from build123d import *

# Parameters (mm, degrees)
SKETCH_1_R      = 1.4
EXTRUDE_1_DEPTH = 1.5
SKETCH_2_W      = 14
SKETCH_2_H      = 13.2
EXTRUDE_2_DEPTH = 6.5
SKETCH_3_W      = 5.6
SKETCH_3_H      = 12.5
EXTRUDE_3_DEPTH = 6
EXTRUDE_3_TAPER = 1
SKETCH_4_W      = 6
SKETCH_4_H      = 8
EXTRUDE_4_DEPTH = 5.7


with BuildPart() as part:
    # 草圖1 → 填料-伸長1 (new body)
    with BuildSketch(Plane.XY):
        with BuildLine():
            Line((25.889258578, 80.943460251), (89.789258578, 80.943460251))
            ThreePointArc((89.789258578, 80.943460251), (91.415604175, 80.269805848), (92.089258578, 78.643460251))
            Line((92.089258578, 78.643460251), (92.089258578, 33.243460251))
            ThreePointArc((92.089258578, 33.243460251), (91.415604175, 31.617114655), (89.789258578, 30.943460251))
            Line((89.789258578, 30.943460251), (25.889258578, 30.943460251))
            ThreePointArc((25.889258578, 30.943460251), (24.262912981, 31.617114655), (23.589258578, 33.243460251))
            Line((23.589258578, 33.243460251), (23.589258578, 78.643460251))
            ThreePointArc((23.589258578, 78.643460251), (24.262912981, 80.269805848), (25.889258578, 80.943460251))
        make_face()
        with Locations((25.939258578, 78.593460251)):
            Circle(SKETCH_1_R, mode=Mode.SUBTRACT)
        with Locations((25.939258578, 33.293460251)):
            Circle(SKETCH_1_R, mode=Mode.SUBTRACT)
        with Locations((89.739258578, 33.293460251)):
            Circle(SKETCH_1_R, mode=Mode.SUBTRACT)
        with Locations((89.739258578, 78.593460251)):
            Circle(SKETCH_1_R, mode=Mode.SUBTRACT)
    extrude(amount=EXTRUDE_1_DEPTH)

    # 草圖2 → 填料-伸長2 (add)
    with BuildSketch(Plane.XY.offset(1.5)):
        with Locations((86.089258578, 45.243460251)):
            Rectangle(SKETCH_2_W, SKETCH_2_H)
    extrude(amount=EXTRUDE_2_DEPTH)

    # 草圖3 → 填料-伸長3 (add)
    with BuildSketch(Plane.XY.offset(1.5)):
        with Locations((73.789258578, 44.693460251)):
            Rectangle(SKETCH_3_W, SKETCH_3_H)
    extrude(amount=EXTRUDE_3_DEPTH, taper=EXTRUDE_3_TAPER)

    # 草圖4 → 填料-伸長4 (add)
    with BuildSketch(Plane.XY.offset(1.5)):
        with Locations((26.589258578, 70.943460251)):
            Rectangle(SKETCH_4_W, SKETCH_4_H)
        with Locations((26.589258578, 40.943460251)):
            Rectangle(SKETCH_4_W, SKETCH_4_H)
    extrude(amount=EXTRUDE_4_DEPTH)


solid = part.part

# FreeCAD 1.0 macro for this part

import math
import FreeCAD as App
import Part
import Sketcher

V = App.Vector
Q = App.Units.Quantity


def add_polygon(sketch, points):
    """Adds a closed chain of lines whose ends are joined by coincident constraints."""
    first, n = sketch.GeometryCount, len(points)
    for a, b in zip(points, points[1:] + points[:1]):
        sketch.addGeometry(Part.LineSegment(App.Vector(*a, 0), App.Vector(*b, 0)), False)
    for i in range(n):
        sketch.addConstraint(Sketcher.Constraint("Coincident", first + i, 2, first + (i + 1) % n, 1))

doc = App.newDocument("Part")
params = doc.addObject("Spreadsheet::Sheet", "Params")
for row, (alias, value) in enumerate([
    ("sketch1_diameter", "2.8 mm"),
    ("sketch1_radius", "2.3 mm"),
    ("sketch1_width", "63.9 mm"),
    ("sketch1_height", "45.4 mm"),
    ("pad1_length", "1.5 mm"),
    ("sketch2_width", "14 mm"),
    ("sketch2_height", "13.2 mm"),
    ("pad2_length", "6.5 mm"),
    ("sketch3_width", "5.6 mm"),
    ("sketch3_height", "12.5 mm"),
    ("pad3_length", "6 mm"),
    ("pad3_taper", "-1 deg"),
    ("sketch4_width", "6 mm"),
    ("sketch4_height", "8 mm"),
    ("pad4_length", "5.7 mm"),
], start=1):
    params.set(f"A{row}", alias)
    params.set(f"B{row}", "=" + value)
    params.setAlias(f"B{row}", alias)

body = doc.addObject("PartDesign::Body", "Body")

sketch1 = body.newObject("Sketcher::SketchObject", "Sketch")
sketch1.AttachmentSupport = (doc.getObject("XY_Plane"), [""])
sketch1.MapMode = "FlatFace"
sketch1.addGeometry([
    Part.LineSegment(V(89.8, 80.9, 0), V(25.9, 80.9, 0)),
    Part.ArcOfCircle(Part.Circle(V(25.9, 78.6, 0), V(0, 0, 1), 2.3), math.radians(90), math.radians(180)),
    Part.LineSegment(V(23.6, 78.6, 0), V(23.6, 33.2, 0)),
    Part.ArcOfCircle(Part.Circle(V(25.9, 33.2, 0), V(0, 0, 1), 2.3), math.radians(-180), math.radians(-90)),
    Part.LineSegment(V(25.9, 30.9, 0), V(89.8, 30.9, 0)),
    Part.ArcOfCircle(Part.Circle(V(89.8, 33.2, 0), V(0, 0, 1), 2.3), math.radians(-90), math.radians(0)),
    Part.LineSegment(V(92.1, 33.2, 0), V(92.1, 78.6, 0)),
    Part.ArcOfCircle(Part.Circle(V(89.8, 78.6, 0), V(0, 0, 1), 2.3), math.radians(0), math.radians(90)),
    Part.Circle(V(89.7, 33.3, 0), V(0, 0, 1), 1.4),
    Part.Circle(V(25.9, 33.3, 0), V(0, 0, 1), 1.4),
    Part.Circle(V(89.7, 78.6, 0), V(0, 0, 1), 1.4),
    Part.Circle(V(25.9, 78.6, 0), V(0, 0, 1), 1.4),
], False)
sketch1.addConstraint([
    Sketcher.Constraint("Tangent", 0, 2, 1, 1),
    Sketcher.Constraint("Tangent", 1, 2, 2, 1),
    Sketcher.Constraint("Tangent", 2, 2, 3, 1),
    Sketcher.Constraint("Tangent", 3, 2, 4, 1),
    Sketcher.Constraint("Tangent", 4, 2, 5, 1),
    Sketcher.Constraint("Tangent", 5, 2, 6, 1),
    Sketcher.Constraint("Tangent", 6, 2, 7, 1),
    Sketcher.Constraint("Tangent", 7, 2, 0, 1),
    Sketcher.Constraint("Horizontal", 0),
    Sketcher.Constraint("Vertical", 2),
    Sketcher.Constraint("Horizontal", 4),
    Sketcher.Constraint("Vertical", 6),
    Sketcher.Constraint("Equal", 1, 3),
    Sketcher.Constraint("Equal", 3, 5),
    Sketcher.Constraint("Equal", 5, 7),
    Sketcher.Constraint("Equal", 8, 9),
    Sketcher.Constraint("Equal", 9, 10),
    Sketcher.Constraint("Equal", 10, 11),
    Sketcher.Constraint("Horizontal", 8, 3, 9, 3),
    Sketcher.Constraint("Horizontal", 10, 3, 11, 3),
    Sketcher.Constraint("Vertical", 8, 3, 10, 3),
    Sketcher.Constraint("Vertical", 9, 3, 11, 3),
    Sketcher.Constraint("Diameter", 8, Q("2.8 mm")),
    Sketcher.Constraint("Radius", 1, Q("2.3 mm")),
    Sketcher.Constraint("DistanceX", 0, 2, 0, 1, Q("63.9 mm")),
    Sketcher.Constraint("DistanceY", 2, 2, 2, 1, Q("45.4 mm")),
    Sketcher.Constraint("DistanceX", 9, 3, 8, 3, Q("63.8 mm")),
    Sketcher.Constraint("DistanceY", 8, 3, 10, 3, Q("45.3 mm")),
    Sketcher.Constraint("DistanceX", 8, 3, 5, 3, Q("0.05 mm")),
    Sketcher.Constraint("DistanceY", 5, 3, 8, 3, Q("0.05 mm")),
    Sketcher.Constraint("DistanceX", -1, 1, 1, 3, Q("25.889259 mm")),
    Sketcher.Constraint("DistanceY", -1, 1, 1, 3, Q("78.64346 mm")),
])
sketch1.setExpression("Constraints[22]", "Params.sketch1_diameter")
sketch1.setExpression("Constraints[23]", "Params.sketch1_radius")
sketch1.setExpression("Constraints[24]", "Params.sketch1_width")
sketch1.setExpression("Constraints[25]", "Params.sketch1_height")
pad1 = body.newObject("PartDesign::Pad", "Pad")
pad1.Profile = sketch1
pad1.setExpression("Length", "Params.pad1_length")

sketch2 = body.newObject("Sketcher::SketchObject", "Sketch001")
sketch2.AttachmentSupport = (doc.getObject("XY_Plane"), [""])
sketch2.MapMode = "FlatFace"
sketch2.AttachmentOffset = App.Placement(V(0, 0, 1.5), App.Rotation())
add_polygon(sketch2, [(79, 52), (79, 39), (93, 39), (93, 52)])
sketch2.addConstraint([
    Sketcher.Constraint("Vertical", 0),
    Sketcher.Constraint("Horizontal", 1),
    Sketcher.Constraint("Vertical", 2),
    Sketcher.Constraint("Horizontal", 3),
    Sketcher.Constraint("DistanceX", 1, 1, 1, 2, Q("14 mm")),
    Sketcher.Constraint("DistanceY", 0, 2, 0, 1, Q("13.2 mm")),
    Sketcher.Constraint("DistanceX", -1, 1, 0, 2, Q("79.089259 mm")),
    Sketcher.Constraint("DistanceY", -1, 1, 0, 2, Q("38.64346 mm")),
])
sketch2.setExpression("Constraints[8]", "Params.sketch2_width")
sketch2.setExpression("Constraints[9]", "Params.sketch2_height")
pad2 = body.newObject("PartDesign::Pad", "Pad001")
pad2.Profile = sketch2
pad2.setExpression("Length", "Params.pad2_length")

sketch3 = body.newObject("Sketcher::SketchObject", "Sketch002")
sketch3.AttachmentSupport = (doc.getObject("XY_Plane"), [""])
sketch3.MapMode = "FlatFace"
sketch3.AttachmentOffset = App.Placement(V(0, 0, 1.5), App.Rotation())
add_polygon(sketch3, [(71, 51), (71, 38), (77, 38), (77, 51)])
sketch3.addConstraint([
    Sketcher.Constraint("Vertical", 0),
    Sketcher.Constraint("Horizontal", 1),
    Sketcher.Constraint("Vertical", 2),
    Sketcher.Constraint("Horizontal", 3),
    Sketcher.Constraint("DistanceX", 1, 1, 1, 2, Q("5.6 mm")),
    Sketcher.Constraint("DistanceY", 0, 2, 0, 1, Q("12.5 mm")),
    Sketcher.Constraint("DistanceX", -1, 1, 0, 2, Q("70.989259 mm")),
    Sketcher.Constraint("DistanceY", -1, 1, 0, 2, Q("38.44346 mm")),
])
sketch3.setExpression("Constraints[8]", "Params.sketch3_width")
sketch3.setExpression("Constraints[9]", "Params.sketch3_height")
pad3 = body.newObject("PartDesign::Pad", "Pad002")
pad3.Profile = sketch3
pad3.setExpression("Length", "Params.pad3_length")
pad3.setExpression("TaperAngle", "Params.pad3_taper")

sketch4 = body.newObject("Sketcher::SketchObject", "Sketch003")
sketch4.AttachmentSupport = (doc.getObject("XY_Plane"), [""])
sketch4.MapMode = "FlatFace"
sketch4.AttachmentOffset = App.Placement(V(0, 0, 1.5), App.Rotation())
add_polygon(sketch4, [(24, 75), (24, 67), (30, 67), (30, 75)])
add_polygon(sketch4, [(24, 45), (24, 37), (30, 37), (30, 45)])
sketch4.addConstraint([
    Sketcher.Constraint("Vertical", 0),
    Sketcher.Constraint("Horizontal", 1),
    Sketcher.Constraint("Vertical", 2),
    Sketcher.Constraint("Horizontal", 3),
    Sketcher.Constraint("Vertical", 4),
    Sketcher.Constraint("Horizontal", 5),
    Sketcher.Constraint("Vertical", 6),
    Sketcher.Constraint("Horizontal", 7),
    Sketcher.Constraint("Vertical", 3, 2, 4, 2),
    Sketcher.Constraint("Vertical", 2, 2, 5, 2),
    Sketcher.Constraint("Equal", 2, 4),
    Sketcher.Constraint("DistanceX", 1, 1, 1, 2, Q("6 mm")),
    Sketcher.Constraint("DistanceY", 0, 2, 0, 1, Q("8 mm")),
    Sketcher.Constraint("DistanceY", 4, 2, 0, 2, Q("30 mm")),
    Sketcher.Constraint("DistanceX", -1, 1, 0, 2, Q("23.589259 mm")),
    Sketcher.Constraint("DistanceY", -1, 1, 0, 2, Q("66.94346 mm")),
])
sketch4.setExpression("Constraints[19]", "Params.sketch4_width")
sketch4.setExpression("Constraints[20]", "Params.sketch4_height")
pad4 = body.newObject("PartDesign::Pad", "Pad003")
pad4.Profile = sketch4
pad4.setExpression("Length", "Params.pad4_length")

doc.recompute()
